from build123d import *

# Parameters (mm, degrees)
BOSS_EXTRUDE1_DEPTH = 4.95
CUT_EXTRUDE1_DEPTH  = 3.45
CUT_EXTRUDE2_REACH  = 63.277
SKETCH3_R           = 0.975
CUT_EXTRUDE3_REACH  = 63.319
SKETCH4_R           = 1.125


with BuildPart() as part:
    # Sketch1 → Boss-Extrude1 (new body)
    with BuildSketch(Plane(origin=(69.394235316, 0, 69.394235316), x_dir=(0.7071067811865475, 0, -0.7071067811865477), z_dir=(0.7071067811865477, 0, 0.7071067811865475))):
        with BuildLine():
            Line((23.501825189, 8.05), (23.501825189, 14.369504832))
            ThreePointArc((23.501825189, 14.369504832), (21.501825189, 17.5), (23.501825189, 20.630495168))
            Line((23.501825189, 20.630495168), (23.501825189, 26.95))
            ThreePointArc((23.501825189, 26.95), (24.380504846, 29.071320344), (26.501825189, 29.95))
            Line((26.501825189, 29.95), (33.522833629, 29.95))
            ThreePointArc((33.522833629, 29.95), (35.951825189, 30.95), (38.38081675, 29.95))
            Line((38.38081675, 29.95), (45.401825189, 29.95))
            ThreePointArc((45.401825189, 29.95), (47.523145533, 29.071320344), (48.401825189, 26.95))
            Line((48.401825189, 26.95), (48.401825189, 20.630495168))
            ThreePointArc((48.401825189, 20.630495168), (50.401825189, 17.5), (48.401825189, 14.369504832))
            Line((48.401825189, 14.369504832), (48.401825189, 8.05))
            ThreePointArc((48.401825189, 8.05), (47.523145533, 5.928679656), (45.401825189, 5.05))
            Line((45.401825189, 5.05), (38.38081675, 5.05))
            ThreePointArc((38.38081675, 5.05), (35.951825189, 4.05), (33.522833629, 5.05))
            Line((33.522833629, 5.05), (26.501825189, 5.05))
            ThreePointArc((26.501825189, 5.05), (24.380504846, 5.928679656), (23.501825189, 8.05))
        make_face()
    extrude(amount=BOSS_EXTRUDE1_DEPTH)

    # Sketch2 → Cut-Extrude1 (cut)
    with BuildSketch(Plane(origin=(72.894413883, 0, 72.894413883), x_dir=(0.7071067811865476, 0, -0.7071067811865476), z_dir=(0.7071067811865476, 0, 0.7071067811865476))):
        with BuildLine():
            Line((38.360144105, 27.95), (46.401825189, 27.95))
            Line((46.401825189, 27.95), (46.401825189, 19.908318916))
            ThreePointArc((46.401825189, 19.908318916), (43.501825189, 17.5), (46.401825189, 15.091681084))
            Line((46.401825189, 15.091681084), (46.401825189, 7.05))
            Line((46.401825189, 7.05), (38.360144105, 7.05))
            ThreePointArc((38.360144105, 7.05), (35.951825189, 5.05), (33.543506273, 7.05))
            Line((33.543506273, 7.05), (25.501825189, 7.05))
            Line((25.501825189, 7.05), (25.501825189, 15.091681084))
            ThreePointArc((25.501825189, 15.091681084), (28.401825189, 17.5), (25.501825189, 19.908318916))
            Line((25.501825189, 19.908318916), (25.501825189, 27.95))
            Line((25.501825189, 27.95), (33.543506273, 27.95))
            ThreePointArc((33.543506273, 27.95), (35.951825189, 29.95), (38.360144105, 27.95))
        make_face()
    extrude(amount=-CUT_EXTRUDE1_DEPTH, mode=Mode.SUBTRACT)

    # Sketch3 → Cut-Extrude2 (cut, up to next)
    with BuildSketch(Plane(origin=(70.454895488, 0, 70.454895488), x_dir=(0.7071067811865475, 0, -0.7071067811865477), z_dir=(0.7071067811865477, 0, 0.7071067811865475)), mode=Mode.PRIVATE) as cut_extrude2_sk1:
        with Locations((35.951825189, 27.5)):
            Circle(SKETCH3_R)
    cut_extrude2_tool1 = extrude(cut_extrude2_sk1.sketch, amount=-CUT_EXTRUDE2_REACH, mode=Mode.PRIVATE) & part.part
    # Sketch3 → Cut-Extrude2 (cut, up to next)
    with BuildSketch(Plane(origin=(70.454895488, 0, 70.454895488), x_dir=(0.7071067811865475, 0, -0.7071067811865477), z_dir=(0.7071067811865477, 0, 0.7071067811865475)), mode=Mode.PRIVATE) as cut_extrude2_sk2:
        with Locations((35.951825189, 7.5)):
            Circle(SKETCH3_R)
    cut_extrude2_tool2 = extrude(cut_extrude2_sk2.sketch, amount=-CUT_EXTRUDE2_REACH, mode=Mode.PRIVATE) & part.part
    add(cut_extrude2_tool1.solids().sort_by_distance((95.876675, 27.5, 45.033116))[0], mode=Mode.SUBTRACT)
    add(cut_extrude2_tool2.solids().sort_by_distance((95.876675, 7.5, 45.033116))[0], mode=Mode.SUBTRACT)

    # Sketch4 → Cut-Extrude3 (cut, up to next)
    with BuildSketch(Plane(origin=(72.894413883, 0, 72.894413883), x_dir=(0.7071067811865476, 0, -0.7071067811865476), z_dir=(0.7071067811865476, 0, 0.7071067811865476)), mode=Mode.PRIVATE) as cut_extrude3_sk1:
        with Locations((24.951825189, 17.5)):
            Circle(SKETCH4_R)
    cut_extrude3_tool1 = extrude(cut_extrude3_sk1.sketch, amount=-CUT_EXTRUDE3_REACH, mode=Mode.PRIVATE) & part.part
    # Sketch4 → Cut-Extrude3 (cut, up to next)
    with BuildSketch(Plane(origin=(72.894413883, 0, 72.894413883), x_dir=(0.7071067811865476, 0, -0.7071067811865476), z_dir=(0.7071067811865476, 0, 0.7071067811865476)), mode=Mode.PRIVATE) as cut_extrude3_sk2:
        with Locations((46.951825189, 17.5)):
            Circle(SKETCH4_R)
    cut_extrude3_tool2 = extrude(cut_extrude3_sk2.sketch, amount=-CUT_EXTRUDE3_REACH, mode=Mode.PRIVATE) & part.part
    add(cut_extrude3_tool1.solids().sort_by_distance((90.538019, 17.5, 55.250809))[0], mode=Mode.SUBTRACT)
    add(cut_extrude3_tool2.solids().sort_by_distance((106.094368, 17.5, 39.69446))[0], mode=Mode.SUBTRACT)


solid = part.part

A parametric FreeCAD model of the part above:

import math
import FreeCAD as App
import Part
import Sketcher

V = App.Vector
Q = App.Units.Quantity

doc = App.newDocument("Part")
body = doc.addObject("PartDesign::Body", "Body")

sketch1 = body.newObject("Sketcher::SketchObject", "Sketch")
sketch1.Placement = App.Placement(V(69.394235, 0, 69.394235), App.Rotation(V(0.707106781, 0, -0.707106781), V(0, 0.999999999, 0), V(0.707106781, 0, 0.707106781), "ZXY"))
sketch1.addGeometry([
    Part.LineSegment(V(23.501825, 14.369505, 0), V(23.501825, 8.05, 0)),
    Part.ArcOfCircle(Part.Circle(V(26.501825, 8.05, 0), V(0, 0, 1), 3), math.radians(180), math.radians(270)),
    Part.LineSegment(V(26.501825, 5.05, 0), V(33.522834, 5.05, 0)),
    Part.ArcOfCircle(Part.Circle(V(35.951825, 7.5, 0), V(0, 0, 1), 3.45), math.radians(-134.753292), math.radians(-45.246708)),
    Part.LineSegment(V(38.380817, 5.05, 0), V(45.401825, 5.05, 0)),
    Part.ArcOfCircle(Part.Circle(V(45.401825, 8.05, 0), V(0, 0, 1), 3), math.radians(-90), math.radians(0)),
    Part.LineSegment(V(48.401825, 8.05, 0), V(48.401825, 14.369505, 0)),
    Part.ArcOfCircle(Part.Circle(V(46.951825, 17.5, 0), V(0, 0, 1), 3.45), math.radians(-65.147111), math.radians(65.147111)),
    Part.LineSegment(V(48.401825, 20.630495, 0), V(48.401825, 26.95, 0)),
    Part.ArcOfCircle(Part.Circle(V(45.401825, 26.95, 0), V(0, 0, 1), 3), math.radians(0), math.radians(90)),
    Part.LineSegment(V(45.401825, 29.95, 0), V(38.380817, 29.95, 0)),
    Part.ArcOfCircle(Part.Circle(V(35.951825, 27.5, 0), V(0, 0, 1), 3.45), math.radians(45.246708), math.radians(134.753292)),
    Part.LineSegment(V(33.522834, 29.95, 0), V(26.501825, 29.95, 0)),
    Part.ArcOfCircle(Part.Circle(V(26.501825, 26.95, 0), V(0, 0, 1), 3), math.radians(90), math.radians(180)),
    Part.LineSegment(V(23.501825, 26.95, 0), V(23.501825, 20.630495, 0)),
    Part.ArcOfCircle(Part.Circle(V(24.951825, 17.5, 0), V(0, 0, 1), 3.45), math.radians(114.852889), math.radians(245.147111)),
], False)
sketch1.addConstraint([
    Sketcher.Constraint("Tangent", 0, 2, 1, 1),
    Sketcher.Constraint("Tangent", 1, 2, 2, 1),
    Sketcher.Constraint("Coincident", 2, 2, 3, 1),
    Sketcher.Constraint("Coincident", 3, 2, 4, 1),
    Sketcher.Constraint("Tangent", 4, 2, 5, 1),
    Sketcher.Constraint("Tangent", 5, 2, 6, 1),
    Sketcher.Constraint("Coincident", 6, 2, 7, 1),
    Sketcher.Constraint("Coincident", 7, 2, 8, 1),
    Sketcher.Constraint("Tangent", 8, 2, 9, 1),
    Sketcher.Constraint("Tangent", 9, 2, 10, 1),
    Sketcher.Constraint("Coincident", 10, 2, 11, 1),
    Sketcher.Constraint("Coincident", 11, 2, 12, 1),
    Sketcher.Constraint("Tangent", 12, 2, 13, 1),
    Sketcher.Constraint("Tangent", 13, 2, 14, 1),
    Sketcher.Constraint("Coincident", 14, 2, 15, 1),
    Sketcher.Constraint("Coincident", 15, 2, 0, 1),
    Sketcher.Constraint("Vertical", 0),
    Sketcher.Constraint("Horizontal", 2),
    Sketcher.Constraint("Horizontal", 4),
    Sketcher.Constraint("Vertical", 6),
    Sketcher.Constraint("Vertical", 8),
    Sketcher.Constraint("Horizontal", 10),
    Sketcher.Constraint("Horizontal", 12),
    Sketcher.Constraint("Vertical", 14),
    Sketcher.Constraint("Equal", 1, 5),
    Sketcher.Constraint("Equal", 3, 7),
    Sketcher.Constraint("Equal", 5, 9),
    Sketcher.Constraint("Equal", 7, 11),
    Sketcher.Constraint("Equal", 9, 13),
    Sketcher.Constraint("Equal", 11, 15),
    Sketcher.Constraint("Horizontal", 1, 3, 5, 3),
    Sketcher.Constraint("Horizontal", 9, 3, 13, 3),
    Sketcher.Constraint("Horizontal", 7, 3, 15, 3),
    Sketcher.Constraint("Horizontal", 7, 2, 14, 2),
    Sketcher.Constraint("Horizontal", 6, 2, 15, 2),
    Sketcher.Constraint("Vertical", 5, 3, 9, 3),
    Sketcher.Constraint("Vertical", 3, 3, 11, 3),
    Sketcher.Constraint("Vertical", 3, 2, 10, 2),
    Sketcher.Constraint("Equal", 2, 4),
    Sketcher.Constraint("Equal", 6, 8),
    Sketcher.Constraint("Radius", 1, Q("3 mm")),
    Sketcher.Constraint("Radius", 3, Q("3.45 mm")),
    Sketcher.Constraint("DistanceX", 3, 3, 7, 3, Q("11 mm")),
    Sketcher.Constraint("DistanceY", 3, 3, 7, 3, Q("10 mm")),
    Sketcher.Constraint("DistanceY", -1, 1, 3, 3, Q("7.5 mm")),
    Sketcher.Constraint("DistanceX", 1, 3, 5, 3, Q("18.9 mm")),
    Sketcher.Constraint("DistanceY", 5, 3, 9, 3, Q("18.9 mm")),
    Sketcher.Constraint("DistanceX", -1, 1, 1, 3, Q("26.501825 mm")),
])
pad1 = body.newObject("PartDesign::Pad", "Pad")
pad1.Profile = sketch1
pad1.Length = 4.95

sketch2 = body.newObject("Sketcher::SketchObject", "Sketch001")
sketch2.Placement = App.Placement(V(72.894414, 0, 72.894414), App.Rotation(V(0.707106781, 0, -0.707106781), V(0, 0.999999999, 0), V(0.707106781, 0, 0.707106781), "ZXY"))
sketch2.addGeometry([
    Part.LineSegment(V(46.401825, 27.95, 0), V(38.360144, 27.95, 0)),
    Part.ArcOfCircle(Part.Circle(V(35.951825, 27.5, 0), V(0, 0, 1), 2.45), math.radians(10.583803), math.radians(169.416197)),
    Part.LineSegment(V(33.543506, 27.95, 0), V(25.501825, 27.95, 0)),
    Part.LineSegment(V(25.501825, 27.95, 0), V(25.501825, 19.908319, 0)),
    Part.ArcOfCircle(Part.Circle(V(25.951825, 17.5, 0), V(0, 0, 1), 2.45), math.radians(-100.583803), math.radians(100.583803)),
    Part.LineSegment(V(25.501825, 15.091681, 0), V(25.501825, 7.05, 0)),
    Part.LineSegment(V(25.501825, 7.05, 0), V(33.543506, 7.05, 0)),
    Part.ArcOfCircle(Part.Circle(V(35.951825, 7.5, 0), V(0, 0, 1), 2.45), math.radians(-169.416197), math.radians(-10.583803)),
    Part.LineSegment(V(38.360144, 7.05, 0), V(46.401825, 7.05, 0)),
    Part.LineSegment(V(46.401825, 7.05, 0), V(46.401825, 15.091681, 0)),
    Part.ArcOfCircle(Part.Circle(V(45.951825, 17.5, 0), V(0, 0, 1), 2.45), math.radians(79.416197), math.radians(280.583803)),
    Part.LineSegment(V(46.401825, 19.908319, 0), V(46.401825, 27.95, 0)),
], False)
sketch2.addConstraint([
    Sketcher.Constraint("Coincident", 0, 2, 1, 1),
    Sketcher.Constraint("Coincident", 1, 2, 2, 1),
    Sketcher.Constraint("Coincident", 2, 2, 3, 1),
    Sketcher.Constraint("Coincident", 3, 2, 4, 2),
    Sketcher.Constraint("Coincident", 4, 1, 5, 1),
    Sketcher.Constraint("Coincident", 5, 2, 6, 1),
    Sketcher.Constraint("Coincident", 6, 2, 7, 1),
    Sketcher.Constraint("Coincident", 7, 2, 8, 1),
    Sketcher.Constraint("Coincident", 8, 2, 9, 1),
    Sketcher.Constraint("Coincident", 9, 2, 10, 2),
    Sketcher.Constraint("Coincident", 10, 1, 11, 1),
    Sketcher.Constraint("Coincident", 11, 2, 0, 1),
    Sketcher.Constraint("Horizontal", 0),
    Sketcher.Constraint("Horizontal", 2),
    Sketcher.Constraint("Vertical", 3),
    Sketcher.Constraint("Vertical", 5),
    Sketcher.Constraint("Horizontal", 6),
    Sketcher.Constraint("Horizontal", 8),
    Sketcher.Constraint("Vertical", 9),
    Sketcher.Constraint("Vertical", 11),
    Sketcher.Constraint("Equal", 1, 4),
    Sketcher.Constraint("Equal", 4, 7),
    Sketcher.Constraint("Equal", 7, 10),
    Sketcher.Constraint("Horizontal", 4, 3, 10, 3),
    Sketcher.Constraint("Horizontal", 0, 2, 1, 2),
    Sketcher.Constraint("Horizontal", 6, 2, 7, 2),
    Sketcher.Constraint("Horizontal", 4, 1, 9, 2),
    Sketcher.Constraint("Horizontal", 3, 2, 10, 1),
    Sketcher.Constraint("Vertical", 1, 3, 7, 3),
    Sketcher.Constraint("Vertical", 3, 2, 4, 1),
    Sketcher.Constraint("Vertical", 1, 2, 6, 2),
    Sketcher.Constraint("Equal", 0, 2),
    Sketcher.Constraint("Equal", 8, 3),
    Sketcher.Constraint("Equal", 3, 5),
    Sketcher.Constraint("Radius", 1, Q("2.45 mm")),
    Sketcher.Constraint("DistanceX", 4, 3, 1, 3, Q("10 mm")),
    Sketcher.Constraint("DistanceY", 4, 3, 1, 3, Q("10 mm")),
    Sketcher.Constraint("DistanceY", -1, 1, 1, 3, Q("27.5 mm")),
    Sketcher.Constraint("DistanceY", 5, 2, 2, 2, Q("20.9 mm")),
    Sketcher.Constraint("DistanceX", -1, 1, 1, 3, Q("35.951825 mm")),
])
pocket1 = body.newObject("PartDesign::Pocket", "Pocket")
pocket1.Profile = sketch2
pocket1.Length = 3.45

sketch3 = body.newObject("Sketcher::SketchObject", "Sketch002")
sketch3.Placement = App.Placement(V(70.454895, 0, 70.454895), App.Rotation(V(0.707106781, 0, -0.707106781), V(0, 0.999999999, 0), V(0.707106781, 0, 0.707106781), "ZXY"))
sketch3.addGeometry(Part.Circle(V(35.951825, 27.5, 0), V(0, 0, 1), 0.975), False)
sketch3.addConstraint([
    Sketcher.Constraint("Diameter", 0, Q("1.95 mm")),
    Sketcher.Constraint("DistanceY", -1, 1, 0, 3, Q("27.5 mm")),
    Sketcher.Constraint("DistanceX", -1, 1, 0, 3, Q("35.951825 mm")),
])
pocket2 = body.newObject("PartDesign::Pocket", "Pocket001")
pocket2.Profile = sketch3
pocket2.Type = "UpToFirst"

sketch4 = body.newObject("Sketcher::SketchObject", "Sketch003")
sketch4.Placement = App.Placement(V(70.454895, 0, 70.454895), App.Rotation(V(0.707106781, 0, -0.707106781), V(0, 0.999999999, 0), V(0.707106781, 0, 0.707106781), "ZXY"))
sketch4.addGeometry(Part.Circle(V(35.951825, 7.5, 0), V(0, 0, 1), 0.975), False)
sketch4.addConstraint([
    Sketcher.Constraint("Diameter", 0, Q("1.95 mm")),
    Sketcher.Constraint("DistanceY", -1, 1, 0, 3, Q("7.5 mm")),
    Sketcher.Constraint("DistanceX", -1, 1, 0, 3, Q("35.951825 mm")),
])
pocket3 = body.newObject("PartDesign::Pocket", "Pocket002")
pocket3.Profile = sketch4
pocket3.Type = "UpToFirst"

sketch5 = body.newObject("Sketcher::SketchObject", "Sketch004")
sketch5.Placement = App.Placement(V(72.894414, 0, 72.894414), App.Rotation(V(0.707106781, 0, -0.707106781), V(0, 0.999999999, 0), V(0.707106781, 0, 0.707106781), "ZXY"))
sketch5.addGeometry(Part.Circle(V(24.951825, 17.5, 0), V(0, 0, 1), 1.125), False)
sketch5.addConstraint([
    Sketcher.Constraint("Diameter", 0, Q("2.25 mm")),
    Sketcher.Constraint("DistanceY", -1, 1, 0, 3, Q("17.5 mm")),
    Sketcher.Constraint("DistanceX", -1, 1, 0, 3, Q("24.951825 mm")),
])
pocket4 = body.newObject("PartDesign::Pocket", "Pocket003")
pocket4.Profile = sketch5
pocket4.Type = "UpToFirst"

sketch6 = body.newObject("Sketcher::SketchObject", "Sketch005")
sketch6.Placement = App.Placement(V(72.894414, 0, 72.894414), App.Rotation(V(0.707106781, 0, -0.707106781), V(0, 0.999999999, 0), V(0.707106781, 0, 0.707106781), "ZXY"))
sketch6.addGeometry(Part.Circle(V(46.951825, 17.5, 0), V(0, 0, 1), 1.125), False)
sketch6.addConstraint([
    Sketcher.Constraint("Diameter", 0, Q("2.25 mm")),
    Sketcher.Constraint("DistanceY", -1, 1, 0, 3, Q("17.5 mm")),
    Sketcher.Constraint("DistanceX", -1, 1, 0, 3, Q("46.951825 mm")),
])
pocket5 = body.newObject("PartDesign::Pocket", "Pocket004")
pocket5.Profile = sketch6
pocket5.Type = "UpToFirst"

doc.recompute()
